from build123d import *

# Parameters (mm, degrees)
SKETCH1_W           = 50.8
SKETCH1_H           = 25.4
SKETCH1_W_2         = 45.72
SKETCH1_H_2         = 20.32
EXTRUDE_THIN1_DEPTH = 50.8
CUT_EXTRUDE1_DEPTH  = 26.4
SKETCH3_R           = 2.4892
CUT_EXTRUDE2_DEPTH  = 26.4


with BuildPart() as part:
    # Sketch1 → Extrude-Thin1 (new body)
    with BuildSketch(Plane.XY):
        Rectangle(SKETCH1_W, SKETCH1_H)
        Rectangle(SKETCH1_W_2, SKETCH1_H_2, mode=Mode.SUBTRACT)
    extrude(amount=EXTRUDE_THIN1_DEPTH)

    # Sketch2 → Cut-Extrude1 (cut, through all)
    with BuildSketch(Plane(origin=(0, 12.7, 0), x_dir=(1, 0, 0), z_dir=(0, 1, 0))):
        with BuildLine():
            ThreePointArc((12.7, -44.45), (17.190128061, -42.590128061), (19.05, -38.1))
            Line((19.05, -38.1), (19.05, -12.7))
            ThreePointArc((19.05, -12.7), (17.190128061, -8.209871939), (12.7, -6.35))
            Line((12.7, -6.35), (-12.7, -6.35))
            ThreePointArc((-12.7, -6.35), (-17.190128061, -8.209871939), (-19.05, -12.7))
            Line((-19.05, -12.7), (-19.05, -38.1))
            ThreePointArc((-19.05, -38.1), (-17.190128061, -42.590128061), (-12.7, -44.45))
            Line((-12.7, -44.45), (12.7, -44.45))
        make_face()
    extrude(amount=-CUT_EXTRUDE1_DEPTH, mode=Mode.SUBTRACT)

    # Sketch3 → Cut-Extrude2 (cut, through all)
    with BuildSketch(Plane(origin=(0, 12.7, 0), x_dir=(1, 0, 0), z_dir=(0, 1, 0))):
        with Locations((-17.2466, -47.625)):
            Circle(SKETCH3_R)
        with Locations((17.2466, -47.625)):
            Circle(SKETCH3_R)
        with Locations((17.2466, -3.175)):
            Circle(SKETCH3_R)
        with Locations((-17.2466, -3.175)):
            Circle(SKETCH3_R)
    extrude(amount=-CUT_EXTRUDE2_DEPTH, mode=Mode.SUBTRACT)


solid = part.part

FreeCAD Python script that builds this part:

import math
import FreeCAD as App
import Part
import Sketcher
Q = App.Units.Quantity

doc = App.newDocument("Part")
body = doc.addObject("PartDesign::Body", "Body")

sketch1 = body.newObject("Sketcher::SketchObject", "Sketch")
sketch1.AttachmentSupport = (doc.getObject("XY_Plane"), [""])
sketch1.MapMode = "FlatFace"
sketch1.addGeometry(Part.LineSegment(App.Vector(-25.4, 12.7, 0), App.Vector(-25.4, -12.7, 0)), False)
sketch1.addGeometry(Part.LineSegment(App.Vector(-25.4, -12.7, 0), App.Vector(25.4, -12.7, 0)), False)
sketch1.addGeometry(Part.LineSegment(App.Vector(25.4, -12.7, 0), App.Vector(25.4, 12.7, 0)), False)
sketch1.addGeometry(Part.LineSegment(App.Vector(25.4, 12.7, 0), App.Vector(-25.4, 12.7, 0)), False)
sketch1.addGeometry(Part.LineSegment(App.Vector(22.86, -10.16, 0), App.Vector(-22.86, -10.16, 0)), False)
sketch1.addGeometry(Part.LineSegment(App.Vector(-22.86, -10.16, 0), App.Vector(-22.86, 10.16, 0)), False)
sketch1.addGeometry(Part.LineSegment(App.Vector(-22.86, 10.16, 0), App.Vector(22.86, 10.16, 0)), False)
sketch1.addGeometry(Part.LineSegment(App.Vector(22.86, 10.16, 0), App.Vector(22.86, -10.16, 0)), False)
sketch1.addConstraint(Sketcher.Constraint("Coincident", 0, 2, 1, 1))
sketch1.addConstraint(Sketcher.Constraint("Coincident", 1, 2, 2, 1))
sketch1.addConstraint(Sketcher.Constraint("Coincident", 2, 2, 3, 1))
sketch1.addConstraint(Sketcher.Constraint("Coincident", 3, 2, 0, 1))
sketch1.addConstraint(Sketcher.Constraint("Coincident", 4, 2, 5, 1))
sketch1.addConstraint(Sketcher.Constraint("Coincident", 5, 2, 6, 1))
sketch1.addConstraint(Sketcher.Constraint("Coincident", 6, 2, 7, 1))
sketch1.addConstraint(Sketcher.Constraint("Coincident", 7, 2, 4, 1))
sketch1.addConstraint(Sketcher.Constraint("Vertical", 0))
sketch1.addConstraint(Sketcher.Constraint("Horizontal", 1))
sketch1.addConstraint(Sketcher.Constraint("Vertical", 2))
sketch1.addConstraint(Sketcher.Constraint("Horizontal", 3))
sketch1.addConstraint(Sketcher.Constraint("Horizontal", 4))
sketch1.addConstraint(Sketcher.Constraint("Vertical", 5))
sketch1.addConstraint(Sketcher.Constraint("Horizontal", 6))
sketch1.addConstraint(Sketcher.Constraint("Vertical", 7))
sketch1.addConstraint(Sketcher.Constraint("Symmetric", 0, 2, 2, 2, -1, 1))
sketch1.addConstraint(Sketcher.Constraint("Symmetric", 4, 2, 6, 2, -1, 1))
sketch1.addConstraint(Sketcher.Constraint("DistanceX", 1, 1, 1, 2, Q("2 in")))
sketch1.addConstraint(Sketcher.Constraint("DistanceY", 0, 2, 0, 1, Q("1 in")))
sketch1.addConstraint(Sketcher.Constraint("DistanceX", 4, 2, 4, 1, Q("1.8 in")))
sketch1.addConstraint(Sketcher.Constraint("DistanceY", 5, 1, 5, 2, Q("0.8 in")))
pad1 = body.newObject("PartDesign::Pad", "Pad")
pad1.Profile = sketch1
pad1.Length = Q("2 in")

sketch2 = body.newObject("Sketcher::SketchObject", "Sketch001")
sketch2.AttachmentSupport = (doc.getObject("XZ_Plane"), [""])
sketch2.MapMode = "FlatFace"
sketch2.AttachmentOffset = App.Placement(App.Vector(0, 0, -0.5 * 25.4), App.Rotation())
sketch2.addGeometry(Part.ArcOfCircle(Part.Circle(App.Vector(12.7, 38.1, 0), App.Vector(0, 0, 1), 6.35), math.radians(0), math.radians(90)), False)
sketch2.addGeometry(Part.LineSegment(App.Vector(19.05, 38.1, 0), App.Vector(19.05, 12.7, 0)), False)
sketch2.addGeometry(Part.ArcOfCircle(Part.Circle(App.Vector(12.7, 12.7, 0), App.Vector(0, 0, 1), 6.35), math.radians(-90), math.radians(0)), False)
sketch2.addGeometry(Part.LineSegment(App.Vector(12.7, 6.35, 0), App.Vector(-12.7, 6.35, 0)), False)
sketch2.addGeometry(Part.ArcOfCircle(Part.Circle(App.Vector(-12.7, 12.7, 0), App.Vector(0, 0, 1), 6.35), math.radians(180), math.radians(270)), False)
sketch2.addGeometry(Part.LineSegment(App.Vector(-19.05, 12.7, 0), App.Vector(-19.05, 38.1, 0)), False)
sketch2.addGeometry(Part.ArcOfCircle(Part.Circle(App.Vector(-12.7, 38.1, 0), App.Vector(0, 0, 1), 6.35), math.radians(90), math.radians(180)), False)
sketch2.addGeometry(Part.LineSegment(App.Vector(-12.7, 44.45, 0), App.Vector(12.7, 44.45, 0)), False)
sketch2.addConstraint(Sketcher.Constraint("Tangent", 0, 1, 1, 1))
sketch2.addConstraint(Sketcher.Constraint("Tangent", 1, 2, 2, 2))
sketch2.addConstraint(Sketcher.Constraint("Tangent", 2, 1, 3, 1))
sketch2.addConstraint(Sketcher.Constraint("Tangent", 3, 2, 4, 2))
sketch2.addConstraint(Sketcher.Constraint("Tangent", 4, 1, 5, 1))
sketch2.addConstraint(Sketcher.Constraint("Tangent", 5, 2, 6, 2))
sketch2.addConstraint(Sketcher.Constraint("Tangent", 6, 1, 7, 1))
sketch2.addConstraint(Sketcher.Constraint("Tangent", 7, 2, 0, 2))
sketch2.addConstraint(Sketcher.Constraint("Vertical", 1))
sketch2.addConstraint(Sketcher.Constraint("Horizontal", 3))
sketch2.addConstraint(Sketcher.Constraint("Vertical", 5))
sketch2.addConstraint(Sketcher.Constraint("Horizontal", 7))
sketch2.addConstraint(Sketcher.Constraint("Equal", 0, 2))
sketch2.addConstraint(Sketcher.Constraint("Equal", 2, 4))
sketch2.addConstraint(Sketcher.Constraint("Equal", 4, 6))
sketch2.addConstraint(Sketcher.Constraint("Equal", 7, 1))
sketch2.addConstraint(Sketcher.Constraint("DistanceX", 3, 2, 3, 1, Q("1 in")))
sketch2.addConstraint(Sketcher.Constraint("Radius", 0, Q("0.25 in")))
sketch2.addConstraint(Sketcher.Constraint("DistanceX", -1, 1, 0, 3, Q("0.5 in")))
sketch2.addConstraint(Sketcher.Constraint("DistanceY", -1, 1, 0, 3, Q("1.5 in")))
pocket1 = body.newObject("PartDesign::Pocket", "Pocket")
pocket1.Profile = sketch2
pocket1.Type = "ThroughAll"
pocket1.Reversed = True

sketch3 = body.newObject("Sketcher::SketchObject", "Sketch002")
sketch3.AttachmentSupport = (doc.getObject("XZ_Plane"), [""])
sketch3.MapMode = "FlatFace"
sketch3.AttachmentOffset = App.Placement(App.Vector(0, 0, -0.5 * 25.4), App.Rotation())
sketch3.addGeometry(Part.Circle(App.Vector(-17.2466, 47.625, 0), App.Vector(0, 0, 1), 2.4892), False)
sketch3.addGeometry(Part.Circle(App.Vector(17.2466, 47.625, 0), App.Vector(0, 0, 1), 2.4892), False)
sketch3.addGeometry(Part.Circle(App.Vector(17.2466, 3.175, 0), App.Vector(0, 0, 1), 2.4892), False)
sketch3.addGeometry(Part.Circle(App.Vector(-17.2466, 3.175, 0), App.Vector(0, 0, 1), 2.4892), False)
sketch3.addConstraint(Sketcher.Constraint("Equal", 0, 1))
sketch3.addConstraint(Sketcher.Constraint("Equal", 1, 2))
sketch3.addConstraint(Sketcher.Constraint("Equal", 2, 3))
sketch3.addConstraint(Sketcher.Constraint("Symmetric", 0, 3, 1, 3, -2))
sketch3.addConstraint(Sketcher.Constraint("Symmetric", 2, 3, 3, 3, -2))
sketch3.addConstraint(Sketcher.Constraint("Vertical", 1, 3, 2, 3))
sketch3.addConstraint(Sketcher.Constraint("Diameter", 0, Q("0.196 in")))
sketch3.addConstraint(Sketcher.Constraint("DistanceY", 2, 3, 1, 3, Q("1.75 in")))
sketch3.addConstraint(Sketcher.Constraint("DistanceX", 0, 3, -1, 1, Q("0.679 in")))
sketch3.addConstraint(Sketcher.Constraint("DistanceY", -1, 1, 0, 3, Q("1.875 in")))
pocket2 = body.newObject("PartDesign::Pocket", "Pocket001")
pocket2.Profile = sketch3
pocket2.Type = "ThroughAll"
pocket2.Reversed = True

doc.recompute()
